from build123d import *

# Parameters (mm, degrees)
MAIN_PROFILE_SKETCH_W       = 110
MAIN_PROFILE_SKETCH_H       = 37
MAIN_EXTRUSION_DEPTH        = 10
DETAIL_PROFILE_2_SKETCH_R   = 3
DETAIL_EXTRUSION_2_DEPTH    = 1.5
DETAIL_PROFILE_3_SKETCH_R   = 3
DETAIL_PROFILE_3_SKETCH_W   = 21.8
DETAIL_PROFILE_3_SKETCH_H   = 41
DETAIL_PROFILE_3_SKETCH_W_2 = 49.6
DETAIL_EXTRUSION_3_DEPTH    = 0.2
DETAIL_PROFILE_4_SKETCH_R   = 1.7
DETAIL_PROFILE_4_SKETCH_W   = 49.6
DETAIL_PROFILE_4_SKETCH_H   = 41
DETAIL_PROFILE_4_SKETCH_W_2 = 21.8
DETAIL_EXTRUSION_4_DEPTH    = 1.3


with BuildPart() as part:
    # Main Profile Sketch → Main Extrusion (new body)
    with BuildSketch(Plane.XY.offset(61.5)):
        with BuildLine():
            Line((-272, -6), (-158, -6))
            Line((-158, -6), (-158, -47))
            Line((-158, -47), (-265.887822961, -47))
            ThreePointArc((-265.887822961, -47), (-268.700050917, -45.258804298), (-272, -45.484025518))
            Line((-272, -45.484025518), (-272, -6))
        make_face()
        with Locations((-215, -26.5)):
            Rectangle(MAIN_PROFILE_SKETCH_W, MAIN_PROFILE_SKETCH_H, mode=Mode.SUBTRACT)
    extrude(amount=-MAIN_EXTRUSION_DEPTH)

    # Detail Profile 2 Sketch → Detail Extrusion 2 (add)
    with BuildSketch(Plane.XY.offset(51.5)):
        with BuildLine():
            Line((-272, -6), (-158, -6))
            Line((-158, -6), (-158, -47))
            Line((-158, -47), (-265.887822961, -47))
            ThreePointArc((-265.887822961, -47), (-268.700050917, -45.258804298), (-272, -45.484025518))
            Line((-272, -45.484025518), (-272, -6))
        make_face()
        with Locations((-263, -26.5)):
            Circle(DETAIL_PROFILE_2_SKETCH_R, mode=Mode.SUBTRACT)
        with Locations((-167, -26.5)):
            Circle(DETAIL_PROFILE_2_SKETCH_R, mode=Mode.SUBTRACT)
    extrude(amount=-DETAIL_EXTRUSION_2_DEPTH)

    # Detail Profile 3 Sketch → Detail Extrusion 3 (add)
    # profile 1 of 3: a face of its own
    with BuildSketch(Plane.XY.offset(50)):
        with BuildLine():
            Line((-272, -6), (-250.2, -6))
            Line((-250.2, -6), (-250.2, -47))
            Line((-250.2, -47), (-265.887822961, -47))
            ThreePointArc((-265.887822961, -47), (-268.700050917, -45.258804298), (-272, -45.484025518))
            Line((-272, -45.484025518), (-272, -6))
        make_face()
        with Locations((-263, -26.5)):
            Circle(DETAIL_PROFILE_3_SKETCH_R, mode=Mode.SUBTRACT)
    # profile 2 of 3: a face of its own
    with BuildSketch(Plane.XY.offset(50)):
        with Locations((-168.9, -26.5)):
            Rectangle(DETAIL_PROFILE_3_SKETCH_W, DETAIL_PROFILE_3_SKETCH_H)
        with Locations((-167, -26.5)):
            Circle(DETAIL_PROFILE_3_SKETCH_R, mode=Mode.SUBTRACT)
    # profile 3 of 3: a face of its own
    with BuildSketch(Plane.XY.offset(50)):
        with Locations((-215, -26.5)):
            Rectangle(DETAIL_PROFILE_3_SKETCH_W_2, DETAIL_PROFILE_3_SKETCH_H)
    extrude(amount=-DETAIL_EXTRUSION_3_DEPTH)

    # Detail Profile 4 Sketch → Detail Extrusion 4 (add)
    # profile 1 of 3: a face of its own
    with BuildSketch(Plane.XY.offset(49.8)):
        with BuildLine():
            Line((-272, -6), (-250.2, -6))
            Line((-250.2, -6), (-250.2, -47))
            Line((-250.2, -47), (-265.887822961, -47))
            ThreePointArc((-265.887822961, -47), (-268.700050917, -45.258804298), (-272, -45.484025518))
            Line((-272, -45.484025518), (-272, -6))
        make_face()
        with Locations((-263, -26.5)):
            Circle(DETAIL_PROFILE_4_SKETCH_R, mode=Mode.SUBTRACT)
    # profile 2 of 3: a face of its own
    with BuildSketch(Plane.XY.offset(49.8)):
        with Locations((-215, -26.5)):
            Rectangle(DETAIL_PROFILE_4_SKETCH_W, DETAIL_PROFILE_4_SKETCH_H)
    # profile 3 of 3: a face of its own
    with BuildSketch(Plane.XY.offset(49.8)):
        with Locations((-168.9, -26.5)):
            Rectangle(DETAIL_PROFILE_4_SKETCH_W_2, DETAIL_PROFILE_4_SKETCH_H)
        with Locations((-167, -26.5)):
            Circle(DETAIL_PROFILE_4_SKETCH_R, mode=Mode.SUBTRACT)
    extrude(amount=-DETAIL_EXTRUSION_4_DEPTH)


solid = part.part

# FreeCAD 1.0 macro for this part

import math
import FreeCAD as App
import Part
import Sketcher

V = App.Vector


def add_polygon(sketch, points):
    """Adds a closed chain of lines whose ends are joined by coincident constraints."""
    first, n = sketch.GeometryCount, len(points)
    for a, b in zip(points, points[1:] + points[:1]):
        sketch.addGeometry(Part.LineSegment(App.Vector(*a, 0), App.Vector(*b, 0)), False)
    for i in range(n):
        sketch.addConstraint(Sketcher.Constraint("Coincident", first + i, 2, first + (i + 1) % n, 1))

doc = App.newDocument("Part")
body = doc.addObject("PartDesign::Body", "Body")

# Sketch on XY plane
sketch1 = body.newObject("Sketcher::SketchObject", "Sketch")
sketch1.AttachmentSupport = (doc.getObject("XY_Plane"), [""])
sketch1.MapMode = "FlatFace"
sketch1.AttachmentOffset = App.Placement(V(0, 0, 61.5), App.Rotation())
sketch1.addGeometry(Part.LineSegment(V(-158, -6, 0), V(-272, -6, 0)), False)  # 0
sketch1.addGeometry(Part.LineSegment(V(-272, -6, 0), V(-272, -45, 0)), False)  # 1
sketch1.addGeometry(Part.ArcOfCircle(Part.Circle(V(-270, -50, 0), V(0, 0, 1), 5), math.radians(40), math.radians(112)), False)  # 2
sketch1.addGeometry(Part.LineSegment(V(-266, -47, 0), V(-158, -47, 0)), False)  # 3
sketch1.addGeometry(Part.LineSegment(V(-158, -47, 0), V(-158, -6, 0)), False)  # 4
add_polygon(sketch1, [(-270, -45), (-270, -8), (-160, -8), (-160, -45)])  # lines 5-8
sketch1.addConstraint(Sketcher.Constraint("Coincident", 0, 2, 1, 1))
sketch1.addConstraint(Sketcher.Constraint("Coincident", 1, 2, 2, 2))
sketch1.addConstraint(Sketcher.Constraint("Coincident", 2, 1, 3, 1))
sketch1.addConstraint(Sketcher.Constraint("Coincident", 3, 2, 4, 1))
sketch1.addConstraint(Sketcher.Constraint("Coincident", 4, 2, 0, 1))
sketch1.addConstraint(Sketcher.Constraint("Horizontal", 0))
sketch1.addConstraint(Sketcher.Constraint("Vertical", 1))
sketch1.addConstraint(Sketcher.Constraint("Horizontal", 3))
sketch1.addConstraint(Sketcher.Constraint("Vertical", 4))
sketch1.addConstraint(Sketcher.Constraint("Vertical", 5))
sketch1.addConstraint(Sketcher.Constraint("Horizontal", 6))
sketch1.addConstraint(Sketcher.Constraint("Vertical", 7))
sketch1.addConstraint(Sketcher.Constraint("Horizontal", 8))
sketch1.addConstraint(Sketcher.Constraint("Vertical", 2, 3, 5, 2))
sketch1.addConstraint(Sketcher.Constraint("Radius", 2, 5.4))
sketch1.addConstraint(Sketcher.Constraint("DistanceX", 0, 2, 0, 1, 114.0))
sketch1.addConstraint(Sketcher.Constraint("DistanceX", 6, 1, 6, 2, 110.0))
sketch1.addConstraint(Sketcher.Constraint("DistanceY", 4, 1, 4, 2, 41.0))
sketch1.addConstraint(Sketcher.Constraint("DistanceY", 5, 1, 5, 2, 37.0))
sketch1.addConstraint(Sketcher.Constraint("DistanceX", 2, 3, -1, 1, 270.0))
sketch1.addConstraint(Sketcher.Constraint("DistanceX", 0, 2, -1, 1, 272.0))
sketch1.addConstraint(Sketcher.Constraint("DistanceY", 0, 2, -1, 1, 6.0))
sketch1.addConstraint(Sketcher.Constraint("DistanceY", 5, 2, -1, 1, 8.0))
sketch1.addConstraint(Sketcher.Constraint("DistanceY", 2, 3, -1, 1, 50.5))
pad1 = body.newObject("PartDesign::Pad", "Pad")
pad1.Profile = sketch1
pad1.Length = 10
pad1.Reversed = True

# Sketch on XY plane
sketch2 = body.newObject("Sketcher::SketchObject", "Sketch001")
sketch2.AttachmentSupport = (doc.getObject("XY_Plane"), [""])
sketch2.MapMode = "FlatFace"
sketch2.AttachmentOffset = App.Placement(V(0, 0, 51.5), App.Rotation())
sketch2.addGeometry(Part.LineSegment(V(-158, -6, 0), V(-272, -6, 0)), False)
sketch2.addGeometry(Part.LineSegment(V(-272, -6, 0), V(-272, -45.5, 0)), False)
sketch2.addGeometry(Part.ArcOfCircle(Part.Circle(V(-270, -50.5, 0), V(0, 0, 1), 5.4), math.radians(40), math.radians(112)), False)
sketch2.addGeometry(Part.LineSegment(V(-265.9, -47, 0), V(-158, -47, 0)), False)
sketch2.addGeometry(Part.LineSegment(V(-158, -47, 0), V(-158, -6, 0)), False)
sketch2.addGeometry(Part.Circle(V(-167, -26.5, 0), V(0, 0, 1), 3), False)
sketch2.addGeometry(Part.Circle(V(-263, -26.5, 0), V(0, 0, 1), 3), False)
sketch2.addConstraint(Sketcher.Constraint("Coincident", 0, 2, 1, 1))
sketch2.addConstraint(Sketcher.Constraint("Coincident", 1, 2, 2, 2))
sketch2.addConstraint(Sketcher.Constraint("Coincident", 2, 1, 3, 1))
sketch2.addConstraint(Sketcher.Constraint("Coincident", 3, 2, 4, 1))
sketch2.addConstraint(Sketcher.Constraint("Coincident", 4, 2, 0, 1))
sketch2.addConstraint(Sketcher.Constraint("Horizontal", 0))
sketch2.addConstraint(Sketcher.Constraint("Vertical", 1))
sketch2.addConstraint(Sketcher.Constraint("Horizontal", 3))
sketch2.addConstraint(Sketcher.Constraint("Vertical", 4))
sketch2.addConstraint(Sketcher.Constraint("Equal", 5, 6))
sketch2.addConstraint(Sketcher.Constraint("Horizontal", 5, 3, 6, 3))
sketch2.addConstraint(Sketcher.Constraint("Diameter", 5, 6.0))
sketch2.addConstraint(Sketcher.Constraint("Radius", 2, 5.4))
sketch2.addConstraint(Sketcher.Constraint("DistanceX", 0, 2, 0, 1, 114.0))
sketch2.addConstraint(Sketcher.Constraint("DistanceY", 4, 1, 4, 2, 41.0))
sketch2.addConstraint(Sketcher.Constraint("DistanceX", 2, 3, -1, 1, 270.0))
sketch2.addConstraint(Sketcher.Constraint("DistanceX", 5, 3, -1, 1, 167.0))
sketch2.addConstraint(Sketcher.Constraint("DistanceX", 6, 3, -1, 1, 263.0))
sketch2.addConstraint(Sketcher.Constraint("DistanceX", 0, 2, -1, 1, 272.0))
sketch2.addConstraint(Sketcher.Constraint("DistanceY", 0, 2, -1, 1, 6.0))
sketch2.addConstraint(Sketcher.Constraint("DistanceY", 2, 3, 5, 3, 24.0))
sketch2.addConstraint(Sketcher.Constraint("DistanceY", 2, 3, -1, 1, 50.5))
pad2 = body.newObject("PartDesign::Pad", "Pad001")
pad2.Profile = sketch2
pad2.Length = 1.5
pad2.Reversed = True

# Sketch on XY plane
sketch3 = body.newObject("Sketcher::SketchObject", "Sketch002")
sketch3.AttachmentSupport = (doc.getObject("XY_Plane"), [""])
sketch3.MapMode = "FlatFace"
sketch3.AttachmentOffset = App.Placement(V(0, 0, 50), App.Rotation())
sketch3.addGeometry(Part.LineSegment(V(-250.2, -6, 0), V(-272, -6, 0)), False)  # 0
sketch3.addGeometry(Part.LineSegment(V(-272, -6, 0), V(-272, -45.5, 0)), False)  # 1
sketch3.addGeometry(Part.ArcOfCircle(Part.Circle(V(-270, -50.5, 0), V(0, 0, 1), 5.4), math.radians(40), math.radians(112)), False)  # 2
sketch3.addGeometry(Part.LineSegment(V(-265.9, -47, 0), V(-250.2, -47, 0)), False)  # 3
sketch3.addGeometry(Part.LineSegment(V(-250.2, -47, 0), V(-250.2, -6, 0)), False)  # 4
sketch3.addGeometry(Part.Circle(V(-263, -26.5, 0), V(0, 0, 1), 3), False)  # 5
add_polygon(sketch3, [(-179.8, -6), (-179.8, -47), (-158, -47), (-158, -6)])  # lines 6-9
sketch3.addGeometry(Part.Circle(V(-167, -26.5, 0), V(0, 0, 1), 3), False)  # 10
add_polygon(sketch3, [(-239.8, -6), (-239.8, -47), (-190.2, -47), (-190.2, -6)])  # lines 11-14
sketch3.addConstraint(Sketcher.Constraint("Coincident", 0, 2, 1, 1))
sketch3.addConstraint(Sketcher.Constraint("Coincident", 1, 2, 2, 2))
sketch3.addConstraint(Sketcher.Constraint("Coincident", 2, 1, 3, 1))
sketch3.addConstraint(Sketcher.Constraint("Coincident", 3, 2, 4, 1))
sketch3.addConstraint(Sketcher.Constraint("Coincident", 4, 2, 0, 1))
sketch3.addConstraint(Sketcher.Constraint("Horizontal", 0))
sketch3.addConstraint(Sketcher.Constraint("Vertical", 1))
sketch3.addConstraint(Sketcher.Constraint("Horizontal", 3))
sketch3.addConstraint(Sketcher.Constraint("Vertical", 4))
sketch3.addConstraint(Sketcher.Constraint("Vertical", 6))
sketch3.addConstraint(Sketcher.Constraint("Horizontal", 7))
sketch3.addConstraint(Sketcher.Constraint("Vertical", 8))
sketch3.addConstraint(Sketcher.Constraint("Horizontal", 9))
sketch3.addConstraint(Sketcher.Constraint("Vertical", 11))
sketch3.addConstraint(Sketcher.Constraint("Horizontal", 12))
sketch3.addConstraint(Sketcher.Constraint("Vertical", 13))
sketch3.addConstraint(Sketcher.Constraint("Horizontal", 14))
sketch3.addConstraint(Sketcher.Constraint("Equal", 5, 10))
sketch3.addConstraint(Sketcher.Constraint("Horizontal", 5, 3, 10, 3))
sketch3.addConstraint(Sketcher.Constraint("Horizontal", 3, 2, 6, 2))
sketch3.addConstraint(Sketcher.Constraint("Horizontal", 4, 2, 8, 2))
sketch3.addConstraint(Sketcher.Constraint("Horizontal", 7, 2, 11, 2))
sketch3.addConstraint(Sketcher.Constraint("Horizontal", 9, 2, 13, 2))
sketch3.addConstraint(Sketcher.Constraint("Equal", 0, 7))
sketch3.addConstraint(Sketcher.Constraint("Diameter", 5, 6.0))
sketch3.addConstraint(Sketcher.Constraint("Radius", 2, 5.4))
sketch3.addConstraint(Sketcher.Constraint("DistanceY", 4, 1, 4, 2, 41.0))
sketch3.addConstraint(Sketcher.Constraint("DistanceX", 0, 2, 0, 1, 21.8))
sketch3.addConstraint(Sketcher.Constraint("DistanceX", 12, 1, 12, 2, 49.6))
sketch3.addConstraint(Sketcher.Constraint("DistanceX", 2, 3, -1, 1, 270.0))
sketch3.addConstraint(Sketcher.Constraint("DistanceX", 5, 3, -1, 1, 263.0))
sketch3.addConstraint(Sketcher.Constraint("DistanceX", 10, 3, -1, 1, 167.0))
sketch3.addConstraint(Sketcher.Constraint("DistanceX", 0, 2, -1, 1, 272.0))
sketch3.addConstraint(Sketcher.Constraint("DistanceY", 0, 2, -1, 1, 6.0))
sketch3.addConstraint(Sketcher.Constraint("DistanceX", 7, 2, -1, 1, 158.0))
sketch3.addConstraint(Sketcher.Constraint("DistanceY", 2, 3, 5, 3, 24.0))
sketch3.addConstraint(Sketcher.Constraint("DistanceY", 2, 3, -1, 1, 50.5))
sketch3.addConstraint(Sketcher.Constraint("DistanceX", 11, 2, -1, 1, 239.8))
pad3 = body.newObject("PartDesign::Pad", "Pad002")
pad3.Profile = sketch3
pad3.Length = 0.2
pad3.Reversed = True

# Sketch on XY plane
sketch4 = body.newObject("Sketcher::SketchObject", "Sketch003")
sketch4.AttachmentSupport = (doc.getObject("XY_Plane"), [""])
sketch4.MapMode = "FlatFace"
sketch4.AttachmentOffset = App.Placement(V(0, 0, 49.8), App.Rotation())
sketch4.addGeometry(Part.LineSegment(V(-250.2, -6, 0), V(-272, -6, 0)), False)  # 0
sketch4.addGeometry(Part.LineSegment(V(-272, -6, 0), V(-272, -45.5, 0)), False)  # 1
sketch4.addGeometry(Part.ArcOfCircle(Part.Circle(V(-270, -50.5, 0), V(0, 0, 1), 5.4), math.radians(40), math.radians(112)), False)  # 2
sketch4.addGeometry(Part.LineSegment(V(-265.9, -47, 0), V(-250.2, -47, 0)), False)  # 3
sketch4.addGeometry(Part.LineSegment(V(-250.2, -47, 0), V(-250.2, -6, 0)), False)  # 4
sketch4.addGeometry(Part.Circle(V(-263, -26.5, 0), V(0, 0, 1), 1.7), False)  # 5
add_polygon(sketch4, [(-239.8, -6), (-239.8, -47), (-190.2, -47), (-190.2, -6)])  # lines 6-9
add_polygon(sketch4, [(-179.8, -6), (-179.8, -47), (-158, -47), (-158, -6)])  # lines 10-13
sketch4.addGeometry(Part.Circle(V(-167, -26.5, 0), V(0, 0, 1), 1.7), False)  # 14
sketch4.addConstraint(Sketcher.Constraint("Coincident", 0, 2, 1, 1))
sketch4.addConstraint(Sketcher.Constraint("Coincident", 1, 2, 2, 2))
sketch4.addConstraint(Sketcher.Constraint("Coincident", 2, 1, 3, 1))
sketch4.addConstraint(Sketcher.Constraint("Coincident", 3, 2, 4, 1))
sketch4.addConstraint(Sketcher.Constraint("Coincident", 4, 2, 0, 1))
sketch4.addConstraint(Sketcher.Constraint("Horizontal", 0))
sketch4.addConstraint(Sketcher.Constraint("Vertical", 1))
sketch4.addConstraint(Sketcher.Constraint("Horizontal", 3))
sketch4.addConstraint(Sketcher.Constraint("Vertical", 4))
sketch4.addConstraint(Sketcher.Constraint("Vertical", 6))
sketch4.addConstraint(Sketcher.Constraint("Horizontal", 7))
sketch4.addConstraint(Sketcher.Constraint("Vertical", 8))
sketch4.addConstraint(Sketcher.Constraint("Horizontal", 9))
sketch4.addConstraint(Sketcher.Constraint("Vertical", 10))
sketch4.addConstraint(Sketcher.Constraint("Horizontal", 11))
sketch4.addConstraint(Sketcher.Constraint("Vertical", 12))
sketch4.addConstraint(Sketcher.Constraint("Horizontal", 13))
sketch4.addConstraint(Sketcher.Constraint("Equal", 5, 14))
sketch4.addConstraint(Sketcher.Constraint("Horizontal", 5, 3, 14, 3))
sketch4.addConstraint(Sketcher.Constraint("Horizontal", 3, 2, 6, 2))
sketch4.addConstraint(Sketcher.Constraint("Horizontal", 4, 2, 8, 2))
sketch4.addConstraint(Sketcher.Constraint("Horizontal", 7, 2, 10, 2))
sketch4.addConstraint(Sketcher.Constraint("Horizontal", 9, 2, 12, 2))
sketch4.addConstraint(Sketcher.Constraint("Equal", 0, 11))
sketch4.addConstraint(Sketcher.Constraint("Diameter", 5, 3.4))
sketch4.addConstraint(Sketcher.Constraint("Radius", 2, 5.4))
sketch4.addConstraint(Sketcher.Constraint("DistanceY", 4, 1, 4, 2, 41.0))
sketch4.addConstraint(Sketcher.Constraint("DistanceX", 0, 2, 0, 1, 21.8))
sketch4.addConstraint(Sketcher.Constraint("DistanceX", 7, 1, 7, 2, 49.6))
sketch4.addConstraint(Sketcher.Constraint("DistanceX", 2, 3, -1, 1, 270.0))
sketch4.addConstraint(Sketcher.Constraint("DistanceX", 5, 3, -1, 1, 263.0))
sketch4.addConstraint(Sketcher.Constraint("DistanceX", 14, 3, -1, 1, 167.0))
sketch4.addConstraint(Sketcher.Constraint("DistanceX", 0, 2, -1, 1, 272.0))
sketch4.addConstraint(Sketcher.Constraint("DistanceY", 0, 2, -1, 1, 6.0))
sketch4.addConstraint(Sketcher.Constraint("DistanceX", 11, 2, -1, 1, 158.0))
sketch4.addConstraint(Sketcher.Constraint("DistanceY", 2, 3, 5, 3, 24.0))
sketch4.addConstraint(Sketcher.Constraint("DistanceX", 3, 2, 7, 2, 60.0))
sketch4.addConstraint(Sketcher.Constraint("DistanceY", 2, 3, -1, 1, 50.5))
pad4 = body.newObject("PartDesign::Pad", "Pad003")
pad4.Profile = sketch4
pad4.Length = 1.3
pad4.Reversed = True

doc.recompute()
